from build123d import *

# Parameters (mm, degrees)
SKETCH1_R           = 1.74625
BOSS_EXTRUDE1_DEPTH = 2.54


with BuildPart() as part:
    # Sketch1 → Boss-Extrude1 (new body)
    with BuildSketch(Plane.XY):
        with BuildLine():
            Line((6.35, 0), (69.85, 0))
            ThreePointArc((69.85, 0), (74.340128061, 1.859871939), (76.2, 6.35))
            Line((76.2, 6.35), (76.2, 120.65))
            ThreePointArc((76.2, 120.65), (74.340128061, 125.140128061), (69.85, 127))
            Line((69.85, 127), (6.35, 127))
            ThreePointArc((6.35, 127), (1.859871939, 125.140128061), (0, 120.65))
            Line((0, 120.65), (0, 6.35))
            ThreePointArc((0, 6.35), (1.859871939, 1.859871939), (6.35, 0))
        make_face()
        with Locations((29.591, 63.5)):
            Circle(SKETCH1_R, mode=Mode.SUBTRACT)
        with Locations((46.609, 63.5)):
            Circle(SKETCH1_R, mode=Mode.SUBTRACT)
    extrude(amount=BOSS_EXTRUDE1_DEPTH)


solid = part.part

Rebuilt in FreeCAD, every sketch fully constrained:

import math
import FreeCAD as App
import Part
import Sketcher

V = App.Vector
Q = App.Units.Quantity

doc = App.newDocument("Part")
params = doc.addObject("Spreadsheet::Sheet", "Params")
for row, (alias, value) in enumerate([
    ("sketch1_radius", "0.25 in"),
    ("sketch1_width", "2.5 in"),
    ("sketch1_height", "4.5 in"),
    ("pad1_length", "0.1 in"),
], start=1):
    params.set(f"A{row}", alias)
    params.set(f"B{row}", "=" + value)
    params.setAlias(f"B{row}", alias)

body = doc.addObject("PartDesign::Body", "Body")

sketch1 = body.newObject("Sketcher::SketchObject", "Sketch")
sketch1.AttachmentSupport = (doc.getObject("XY_Plane"), [""])
sketch1.MapMode = "FlatFace"
sketch1.addGeometry([
    Part.LineSegment(V(6.3, 0, 0), V(69.8, 0, 0)),
    Part.ArcOfCircle(Part.Circle(V(69.9, 6.3, 0), V(0, 0, 1), 6.3), math.radians(-90), math.radians(0)),
    Part.LineSegment(V(76.2, 6.3, 0), V(76.2, 120.7, 0)),
    Part.ArcOfCircle(Part.Circle(V(69.9, 120.7, 0), V(0, 0, 1), 6.3), math.radians(0), math.radians(90)),
    Part.LineSegment(V(69.8, 127, 0), V(6.3, 127, 0)),
    Part.ArcOfCircle(Part.Circle(V(6.3, 120.7, 0), V(0, 0, 1), 6.3), math.radians(90), math.radians(180)),
    Part.LineSegment(V(0, 120.7, 0), V(0, 6.3, 0)),
    Part.ArcOfCircle(Part.Circle(V(6.3, 6.3, 0), V(0, 0, 1), 6.3), math.radians(180), math.radians(270)),
    Part.Circle(V(29.6, 63.5, 0), V(0, 0, 1), 1.7),
    Part.Circle(V(46.6, 63.5, 0), V(0, 0, 1), 1.7),
], False)
sketch1.addConstraint([
    Sketcher.Constraint("Tangent", 0, 2, 1, 1),
    Sketcher.Constraint("Tangent", 1, 2, 2, 1),
    Sketcher.Constraint("Tangent", 2, 2, 3, 1),
    Sketcher.Constraint("Tangent", 3, 2, 4, 1),
    Sketcher.Constraint("Tangent", 4, 2, 5, 1),
    Sketcher.Constraint("Tangent", 5, 2, 6, 1),
    Sketcher.Constraint("Tangent", 6, 2, 7, 1),
    Sketcher.Constraint("Tangent", 7, 2, 0, 1),
    Sketcher.Constraint("Horizontal", 0),
    Sketcher.Constraint("Vertical", 2),
    Sketcher.Constraint("Horizontal", 4),
    Sketcher.Constraint("Vertical", 6),
    Sketcher.Constraint("Equal", 1, 3),
    Sketcher.Constraint("Equal", 3, 5),
    Sketcher.Constraint("Equal", 5, 7),
    Sketcher.Constraint("Equal", 8, 9),
    Sketcher.Constraint("PointOnObject", 0, 2, -1),
    Sketcher.Constraint("PointOnObject", 5, 2, -2),
    Sketcher.Constraint("Horizontal", 8, 3, 9, 3),
    Sketcher.Constraint("Radius", 1, Q("0.25 in")),
    Sketcher.Constraint("DistanceX", 0, 1, 0, 2, Q("2.5 in")),
    Sketcher.Constraint("DistanceY", 2, 1, 2, 2, Q("4.5 in")),
    Sketcher.Constraint("Diameter", 8, Q("0.1375 in")),
    Sketcher.Constraint("DistanceY", -1, 1, 8, 3, Q("2.5 in")),
    Sketcher.Constraint("DistanceX", 8, 3, 9, 3, Q("0.67 in")),
    Sketcher.Constraint("DistanceX", -1, 1, 8, 3, Q("1.165 in")),
])
sketch1.setExpression("Constraints[19]", "Params.sketch1_radius")
sketch1.setExpression("Constraints[20]", "Params.sketch1_width")
sketch1.setExpression("Constraints[21]", "Params.sketch1_height")
pad1 = body.newObject("PartDesign::Pad", "Pad")
pad1.Profile = sketch1
pad1.setExpression("Length", "Params.pad1_length")

doc.recompute()
